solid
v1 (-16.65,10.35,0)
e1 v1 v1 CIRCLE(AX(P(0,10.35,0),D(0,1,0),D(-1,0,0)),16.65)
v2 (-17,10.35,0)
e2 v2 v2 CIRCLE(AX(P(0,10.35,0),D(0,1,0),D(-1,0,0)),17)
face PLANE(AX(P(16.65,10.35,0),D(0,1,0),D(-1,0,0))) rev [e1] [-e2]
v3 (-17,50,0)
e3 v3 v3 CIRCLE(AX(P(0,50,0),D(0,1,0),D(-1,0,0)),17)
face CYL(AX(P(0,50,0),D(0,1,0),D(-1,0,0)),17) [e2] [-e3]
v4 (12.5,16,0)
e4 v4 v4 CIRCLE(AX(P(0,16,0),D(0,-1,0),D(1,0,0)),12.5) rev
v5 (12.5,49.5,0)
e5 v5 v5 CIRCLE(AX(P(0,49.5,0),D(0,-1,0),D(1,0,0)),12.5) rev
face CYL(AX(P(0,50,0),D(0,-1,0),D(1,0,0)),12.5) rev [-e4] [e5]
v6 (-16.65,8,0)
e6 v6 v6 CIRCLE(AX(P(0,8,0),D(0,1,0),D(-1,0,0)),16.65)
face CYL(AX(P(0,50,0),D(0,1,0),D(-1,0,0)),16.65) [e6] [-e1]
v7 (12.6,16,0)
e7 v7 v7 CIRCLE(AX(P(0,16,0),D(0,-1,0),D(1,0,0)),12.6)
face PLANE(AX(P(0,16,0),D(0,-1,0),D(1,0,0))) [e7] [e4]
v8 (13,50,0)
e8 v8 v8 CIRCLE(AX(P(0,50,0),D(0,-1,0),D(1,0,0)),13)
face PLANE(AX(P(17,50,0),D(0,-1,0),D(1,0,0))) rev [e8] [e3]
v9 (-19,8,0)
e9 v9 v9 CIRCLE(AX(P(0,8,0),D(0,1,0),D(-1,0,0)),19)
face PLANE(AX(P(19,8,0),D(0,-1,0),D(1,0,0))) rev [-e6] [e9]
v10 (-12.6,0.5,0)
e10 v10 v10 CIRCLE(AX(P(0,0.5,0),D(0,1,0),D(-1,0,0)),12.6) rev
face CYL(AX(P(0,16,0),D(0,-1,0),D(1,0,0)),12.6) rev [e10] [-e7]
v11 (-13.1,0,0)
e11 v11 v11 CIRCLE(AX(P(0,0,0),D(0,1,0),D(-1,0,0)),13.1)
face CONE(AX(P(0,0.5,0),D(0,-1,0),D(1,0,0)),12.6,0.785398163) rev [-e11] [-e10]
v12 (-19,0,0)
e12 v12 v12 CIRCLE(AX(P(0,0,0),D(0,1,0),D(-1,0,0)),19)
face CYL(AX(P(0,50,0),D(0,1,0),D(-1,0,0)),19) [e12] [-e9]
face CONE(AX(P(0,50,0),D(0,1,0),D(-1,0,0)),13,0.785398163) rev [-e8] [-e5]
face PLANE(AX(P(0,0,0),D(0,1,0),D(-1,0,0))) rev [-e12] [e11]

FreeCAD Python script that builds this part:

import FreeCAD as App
import Part
import Sketcher
from FreeCAD import Vector


def edges_at(feature, points):
    """Names of the edges that pass closest to the given points."""
    edges = feature.Shape.Edges
    near = lambda p: min(range(len(edges)), key=lambda i: edges[i].distToShape(Part.Vertex(*p))[0])
    return sorted({f"Edge{near(p) + 1}" for p in points})

doc = App.newDocument("Part")
body = doc.addObject("PartDesign::Body", "Body")

sketch1 = body.newObject("Sketcher::SketchObject", "Sketch")
sketch1.AttachmentSupport = (doc.getObject("XY_Plane"), [""])
sketch1.MapMode = "FlatFace"
sketch1.addGeometry(Part.LineSegment(Vector(0, 0, 0), Vector(19, 0, 0)), False)
sketch1.addGeometry(Part.LineSegment(Vector(19, 0, 0), Vector(19, 8, 0)), False)
sketch1.addGeometry(Part.LineSegment(Vector(19, 8, 0), Vector(16.65, 8, 0)), False)
sketch1.addGeometry(Part.LineSegment(Vector(16.65, 8, 0), Vector(16.65, 10.35, 0)), False)
sketch1.addGeometry(Part.LineSegment(Vector(16.65, 10.35, 0), Vector(17, 10.35, 0)), False)
sketch1.addGeometry(Part.LineSegment(Vector(17, 10.35, 0), Vector(17, 50, 0)), False)
sketch1.addGeometry(Part.LineSegment(Vector(17, 50, 0), Vector(0, 50, 0)), False)
sketch1.addGeometry(Part.LineSegment(Vector(0, 50, 0), Vector(0, 0, 0)), False)
sketch1.addConstraint(Sketcher.Constraint("Coincident", 0, 2, 1, 1))
sketch1.addConstraint(Sketcher.Constraint("Coincident", 1, 2, 2, 1))
sketch1.addConstraint(Sketcher.Constraint("Coincident", 2, 2, 3, 1))
sketch1.addConstraint(Sketcher.Constraint("Coincident", 3, 2, 4, 1))
sketch1.addConstraint(Sketcher.Constraint("Coincident", 4, 2, 5, 1))
sketch1.addConstraint(Sketcher.Constraint("Coincident", 5, 2, 6, 1))
sketch1.addConstraint(Sketcher.Constraint("Coincident", 6, 2, 7, 1))
sketch1.addConstraint(Sketcher.Constraint("Coincident", 7, 2, 0, 1))
sketch1.addConstraint(Sketcher.Constraint("Horizontal", 0))
sketch1.addConstraint(Sketcher.Constraint("Vertical", 1))
sketch1.addConstraint(Sketcher.Constraint("Horizontal", 2))
sketch1.addConstraint(Sketcher.Constraint("Vertical", 3))
sketch1.addConstraint(Sketcher.Constraint("Horizontal", 4))
sketch1.addConstraint(Sketcher.Constraint("Vertical", 5))
sketch1.addConstraint(Sketcher.Constraint("Horizontal", 6))
sketch1.addConstraint(Sketcher.Constraint("Vertical", 7))
sketch1.addConstraint(Sketcher.Constraint("Coincident", 7, 2, -1, 1))
sketch1.addConstraint(Sketcher.Constraint("Equal", 2, 3))
sketch1.addConstraint(Sketcher.Constraint("DistanceX", 0, 1, 0, 2, 19.0))
sketch1.addConstraint(Sketcher.Constraint("DistanceX", 6, 2, 6, 1, 17.0))
sketch1.addConstraint(Sketcher.Constraint("DistanceY", 1, 1, 1, 2, 8.0))
sketch1.addConstraint(Sketcher.Constraint("DistanceY", 7, 2, 7, 1, 50.0))
sketch1.addConstraint(Sketcher.Constraint("DistanceX", 2, 2, 2, 1, 2.35))
revolution = body.newObject("PartDesign::Revolution", "Revolution")
revolution.Profile = sketch1
revolution.ReferenceAxis = (sketch1, ["V_Axis"])
revolution.Angle = 360

sketch2 = body.newObject("Sketcher::SketchObject", "Sketch001")
sketch2.AttachmentSupport = (doc.getObject("XZ_Plane"), [""])
sketch2.MapMode = "FlatFace"
sketch2.addGeometry(Part.Circle(Vector(0, 0, 0), Vector(0, 0, 1), 12), False)
sketch2.addConstraint(Sketcher.Constraint("Coincident", 0, 3, -1, 1))
sketch2.addConstraint(Sketcher.Constraint("Diameter", 0, 25.0))
pocket1 = body.newObject("PartDesign::Pocket", "Pocket")
pocket1.Profile = sketch2
pocket1.Type = "ThroughAll"
pocket1.Midplane = True

sketch3 = body.newObject("Sketcher::SketchObject", "Sketch002")
sketch3.AttachmentSupport = (doc.getObject("XZ_Plane"), [""])
sketch3.MapMode = "FlatFace"
sketch3.addGeometry(Part.Circle(Vector(0, 0, 0), Vector(0, 0, 1), 13), False)
sketch3.addConstraint(Sketcher.Constraint("Coincident", 0, 3, -1, 1))
sketch3.addConstraint(Sketcher.Constraint("Diameter", 0, 25.2))
pocket2 = body.newObject("PartDesign::Pocket", "Pocket001")
pocket2.Profile = sketch3
pocket2.Length = 16
doc.recompute()

chamfer = body.newObject("PartDesign::Chamfer", "Chamfer")
chamfer.Base = (pocket2, edges_at(pocket2, [(-12.6, 0, 0)]))
chamfer.Size = 0.5
doc.recompute()

chamfer2 = body.newObject("PartDesign::Chamfer", "Chamfer001")
chamfer2.Base = (chamfer, edges_at(chamfer, [(-12.5, 50, 0)]))
chamfer2.Size = 0.5

doc.recompute()
